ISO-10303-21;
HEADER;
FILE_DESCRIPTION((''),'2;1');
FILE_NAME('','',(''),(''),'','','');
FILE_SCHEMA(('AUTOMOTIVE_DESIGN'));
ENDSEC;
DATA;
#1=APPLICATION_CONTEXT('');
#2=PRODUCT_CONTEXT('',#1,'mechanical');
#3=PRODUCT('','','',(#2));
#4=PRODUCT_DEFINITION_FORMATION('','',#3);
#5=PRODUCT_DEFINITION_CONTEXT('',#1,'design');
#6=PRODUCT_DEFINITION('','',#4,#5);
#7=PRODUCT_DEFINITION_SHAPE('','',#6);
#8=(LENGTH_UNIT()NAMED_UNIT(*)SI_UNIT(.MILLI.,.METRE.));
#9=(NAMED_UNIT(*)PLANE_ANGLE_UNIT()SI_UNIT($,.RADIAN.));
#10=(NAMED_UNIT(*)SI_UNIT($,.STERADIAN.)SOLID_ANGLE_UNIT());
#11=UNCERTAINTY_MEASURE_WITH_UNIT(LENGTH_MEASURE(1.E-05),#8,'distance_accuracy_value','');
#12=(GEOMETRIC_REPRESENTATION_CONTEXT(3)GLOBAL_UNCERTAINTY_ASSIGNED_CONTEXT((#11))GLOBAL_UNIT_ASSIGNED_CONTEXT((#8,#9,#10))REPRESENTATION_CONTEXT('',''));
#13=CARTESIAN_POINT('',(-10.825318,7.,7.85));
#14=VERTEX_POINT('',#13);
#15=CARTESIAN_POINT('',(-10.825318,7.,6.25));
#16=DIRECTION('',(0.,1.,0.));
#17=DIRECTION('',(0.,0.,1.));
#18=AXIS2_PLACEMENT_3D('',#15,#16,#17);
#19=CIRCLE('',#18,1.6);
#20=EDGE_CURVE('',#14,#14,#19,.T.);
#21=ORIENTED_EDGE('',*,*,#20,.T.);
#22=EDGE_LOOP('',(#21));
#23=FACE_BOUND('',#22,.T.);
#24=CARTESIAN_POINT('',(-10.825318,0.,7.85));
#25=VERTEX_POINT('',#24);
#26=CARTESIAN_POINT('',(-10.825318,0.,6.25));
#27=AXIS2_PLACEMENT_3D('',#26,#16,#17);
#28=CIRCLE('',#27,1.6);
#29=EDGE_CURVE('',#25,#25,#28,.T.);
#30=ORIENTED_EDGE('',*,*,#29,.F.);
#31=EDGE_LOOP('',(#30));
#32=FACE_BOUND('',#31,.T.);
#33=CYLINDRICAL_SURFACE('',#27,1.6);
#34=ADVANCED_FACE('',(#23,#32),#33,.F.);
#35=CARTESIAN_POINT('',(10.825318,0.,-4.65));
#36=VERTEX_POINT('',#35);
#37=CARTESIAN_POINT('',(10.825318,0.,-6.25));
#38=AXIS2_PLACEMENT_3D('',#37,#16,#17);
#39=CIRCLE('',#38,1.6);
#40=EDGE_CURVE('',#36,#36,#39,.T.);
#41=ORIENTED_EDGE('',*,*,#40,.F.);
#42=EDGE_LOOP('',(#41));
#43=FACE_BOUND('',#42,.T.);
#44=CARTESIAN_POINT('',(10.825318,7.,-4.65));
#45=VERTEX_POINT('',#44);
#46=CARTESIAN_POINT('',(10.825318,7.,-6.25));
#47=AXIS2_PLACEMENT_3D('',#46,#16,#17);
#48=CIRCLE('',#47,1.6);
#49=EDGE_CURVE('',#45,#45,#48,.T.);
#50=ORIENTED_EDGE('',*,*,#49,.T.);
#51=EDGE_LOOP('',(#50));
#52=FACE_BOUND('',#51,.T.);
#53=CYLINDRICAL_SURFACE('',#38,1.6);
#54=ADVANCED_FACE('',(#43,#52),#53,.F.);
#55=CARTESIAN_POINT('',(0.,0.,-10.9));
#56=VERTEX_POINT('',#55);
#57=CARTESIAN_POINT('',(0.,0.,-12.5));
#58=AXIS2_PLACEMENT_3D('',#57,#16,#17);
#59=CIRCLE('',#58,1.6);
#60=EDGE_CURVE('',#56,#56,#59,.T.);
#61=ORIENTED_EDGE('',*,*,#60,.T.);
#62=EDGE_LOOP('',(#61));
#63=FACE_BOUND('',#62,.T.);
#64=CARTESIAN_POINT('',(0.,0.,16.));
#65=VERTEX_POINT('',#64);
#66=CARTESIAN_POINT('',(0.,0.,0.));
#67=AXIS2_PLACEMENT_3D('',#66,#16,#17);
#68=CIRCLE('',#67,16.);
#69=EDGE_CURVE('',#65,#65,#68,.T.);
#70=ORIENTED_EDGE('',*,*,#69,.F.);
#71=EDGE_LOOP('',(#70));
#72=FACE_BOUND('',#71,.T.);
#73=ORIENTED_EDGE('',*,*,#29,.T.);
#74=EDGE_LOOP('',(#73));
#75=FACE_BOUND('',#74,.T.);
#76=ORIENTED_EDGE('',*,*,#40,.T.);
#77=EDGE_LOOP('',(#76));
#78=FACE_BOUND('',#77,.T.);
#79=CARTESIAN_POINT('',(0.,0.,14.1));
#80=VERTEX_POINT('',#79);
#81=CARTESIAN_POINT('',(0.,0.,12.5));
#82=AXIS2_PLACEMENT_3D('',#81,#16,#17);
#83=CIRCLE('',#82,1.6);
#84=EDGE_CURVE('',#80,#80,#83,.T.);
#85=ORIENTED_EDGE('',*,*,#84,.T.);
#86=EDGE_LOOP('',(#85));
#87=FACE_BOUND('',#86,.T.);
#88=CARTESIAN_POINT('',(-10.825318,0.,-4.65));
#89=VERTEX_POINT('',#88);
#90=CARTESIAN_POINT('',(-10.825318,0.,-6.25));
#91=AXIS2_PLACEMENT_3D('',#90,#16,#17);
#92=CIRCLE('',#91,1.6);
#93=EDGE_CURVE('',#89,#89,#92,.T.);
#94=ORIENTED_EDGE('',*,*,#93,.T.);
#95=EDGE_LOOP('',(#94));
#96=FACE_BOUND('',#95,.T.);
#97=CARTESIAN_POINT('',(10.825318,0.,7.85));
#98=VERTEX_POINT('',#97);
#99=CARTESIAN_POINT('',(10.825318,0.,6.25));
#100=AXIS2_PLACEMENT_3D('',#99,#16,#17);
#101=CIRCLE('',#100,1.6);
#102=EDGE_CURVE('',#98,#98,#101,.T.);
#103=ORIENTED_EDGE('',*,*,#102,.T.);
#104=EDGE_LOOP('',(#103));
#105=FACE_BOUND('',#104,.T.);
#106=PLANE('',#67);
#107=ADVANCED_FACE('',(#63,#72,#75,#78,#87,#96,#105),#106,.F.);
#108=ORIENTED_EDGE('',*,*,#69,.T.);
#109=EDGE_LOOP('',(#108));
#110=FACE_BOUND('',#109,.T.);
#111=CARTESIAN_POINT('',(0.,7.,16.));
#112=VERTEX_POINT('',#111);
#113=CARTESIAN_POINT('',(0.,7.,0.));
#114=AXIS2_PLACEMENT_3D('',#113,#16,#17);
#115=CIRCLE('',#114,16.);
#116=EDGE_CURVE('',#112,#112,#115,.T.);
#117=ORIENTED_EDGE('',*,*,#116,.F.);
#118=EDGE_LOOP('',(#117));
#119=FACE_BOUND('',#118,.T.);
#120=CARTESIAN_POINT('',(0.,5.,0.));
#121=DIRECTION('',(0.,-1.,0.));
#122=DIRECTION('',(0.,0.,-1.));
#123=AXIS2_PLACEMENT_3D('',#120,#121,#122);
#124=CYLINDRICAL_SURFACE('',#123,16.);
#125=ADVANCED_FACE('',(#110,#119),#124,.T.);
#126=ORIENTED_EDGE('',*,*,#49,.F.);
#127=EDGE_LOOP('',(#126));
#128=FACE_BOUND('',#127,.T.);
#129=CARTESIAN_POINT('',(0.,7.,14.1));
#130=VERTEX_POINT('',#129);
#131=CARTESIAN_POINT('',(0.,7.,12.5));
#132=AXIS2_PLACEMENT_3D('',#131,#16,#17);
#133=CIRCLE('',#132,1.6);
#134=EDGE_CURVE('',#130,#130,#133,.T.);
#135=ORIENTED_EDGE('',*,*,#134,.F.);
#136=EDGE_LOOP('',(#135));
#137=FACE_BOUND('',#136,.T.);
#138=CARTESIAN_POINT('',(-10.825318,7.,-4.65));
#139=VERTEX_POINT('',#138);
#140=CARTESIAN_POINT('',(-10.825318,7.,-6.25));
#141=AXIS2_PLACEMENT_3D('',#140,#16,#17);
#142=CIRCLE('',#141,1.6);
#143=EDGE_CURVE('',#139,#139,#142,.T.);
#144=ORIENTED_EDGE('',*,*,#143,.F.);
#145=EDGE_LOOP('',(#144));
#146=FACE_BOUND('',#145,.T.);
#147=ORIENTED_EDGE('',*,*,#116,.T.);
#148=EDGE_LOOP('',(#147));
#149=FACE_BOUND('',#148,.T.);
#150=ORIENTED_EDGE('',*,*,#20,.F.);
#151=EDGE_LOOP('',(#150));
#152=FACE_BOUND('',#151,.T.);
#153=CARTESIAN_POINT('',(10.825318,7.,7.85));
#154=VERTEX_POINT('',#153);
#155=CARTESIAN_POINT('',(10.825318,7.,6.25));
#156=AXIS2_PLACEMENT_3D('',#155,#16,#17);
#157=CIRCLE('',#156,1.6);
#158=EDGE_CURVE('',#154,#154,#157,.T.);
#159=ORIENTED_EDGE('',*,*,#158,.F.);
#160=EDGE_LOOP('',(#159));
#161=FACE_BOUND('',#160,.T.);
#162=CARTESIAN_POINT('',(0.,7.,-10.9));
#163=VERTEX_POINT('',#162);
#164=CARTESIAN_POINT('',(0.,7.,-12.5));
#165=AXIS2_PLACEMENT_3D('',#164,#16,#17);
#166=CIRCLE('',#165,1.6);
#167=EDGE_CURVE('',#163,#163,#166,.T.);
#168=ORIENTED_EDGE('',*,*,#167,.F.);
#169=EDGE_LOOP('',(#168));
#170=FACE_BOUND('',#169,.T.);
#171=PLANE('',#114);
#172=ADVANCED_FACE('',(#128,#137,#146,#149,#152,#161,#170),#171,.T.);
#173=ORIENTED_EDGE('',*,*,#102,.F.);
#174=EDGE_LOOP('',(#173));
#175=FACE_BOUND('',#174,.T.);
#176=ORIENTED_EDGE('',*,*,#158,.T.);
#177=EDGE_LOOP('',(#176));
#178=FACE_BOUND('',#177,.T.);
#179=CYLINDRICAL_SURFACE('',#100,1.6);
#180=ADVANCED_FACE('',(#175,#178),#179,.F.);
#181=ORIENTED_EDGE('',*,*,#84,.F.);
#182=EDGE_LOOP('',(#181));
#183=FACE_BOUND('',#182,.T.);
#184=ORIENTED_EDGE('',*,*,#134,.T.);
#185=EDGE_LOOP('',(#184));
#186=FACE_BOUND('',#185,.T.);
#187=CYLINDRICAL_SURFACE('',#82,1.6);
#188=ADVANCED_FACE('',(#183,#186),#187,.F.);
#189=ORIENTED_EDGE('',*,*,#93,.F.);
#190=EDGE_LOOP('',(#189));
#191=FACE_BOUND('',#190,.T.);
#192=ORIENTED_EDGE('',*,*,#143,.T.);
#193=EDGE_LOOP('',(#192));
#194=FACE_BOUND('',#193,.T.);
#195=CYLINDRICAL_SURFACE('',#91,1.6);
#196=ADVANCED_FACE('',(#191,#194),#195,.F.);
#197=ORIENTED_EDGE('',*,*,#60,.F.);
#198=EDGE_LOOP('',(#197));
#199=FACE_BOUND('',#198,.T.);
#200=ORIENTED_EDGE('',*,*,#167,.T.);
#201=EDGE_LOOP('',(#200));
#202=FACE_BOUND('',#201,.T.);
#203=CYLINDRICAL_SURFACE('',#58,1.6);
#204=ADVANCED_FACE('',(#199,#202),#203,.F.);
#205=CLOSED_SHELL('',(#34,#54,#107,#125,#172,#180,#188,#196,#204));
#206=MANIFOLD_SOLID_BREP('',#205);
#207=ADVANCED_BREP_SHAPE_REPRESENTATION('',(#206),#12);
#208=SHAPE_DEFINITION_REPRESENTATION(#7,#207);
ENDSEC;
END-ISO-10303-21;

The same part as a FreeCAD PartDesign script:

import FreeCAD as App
import Part
import Sketcher
from FreeCAD import Vector
Q = App.Units.Quantity

doc = App.newDocument("Part")
body = doc.addObject("PartDesign::Body", "Body")

# Sketch on XZ plane
sketch1 = body.newObject("Sketcher::SketchObject", "Sketch")
sketch1.AttachmentSupport = (doc.getObject("XZ_Plane"), [""])
sketch1.MapMode = "FlatFace"
sketch1.addGeometry(Part.Circle(Vector(0, 0, 0), Vector(0, 0, 1), 16), False)
sketch1.addConstraint([
    Sketcher.Constraint("Coincident", 0, 3, -1, 1),
    Sketcher.Constraint("Diameter", 0, Q("32 mm")),
])
pad1 = body.newObject("PartDesign::Pad", "Pad")
pad1.Profile = sketch1
pad1.Length = 5
pad1.Reversed = True

# Sketch on XZ plane
sketch2 = body.newObject("Sketcher::SketchObject", "Sketch001")
sketch2.AttachmentSupport = (doc.getObject("XZ_Plane"), [""])
sketch2.MapMode = "FlatFace"
sketch2.AttachmentOffset = App.Placement(Vector(0, 0, -5), App.Rotation())
sketch2.addGeometry(Part.Circle(Vector(0, 0, 0), Vector(0, 0, 1), 16), False)
sketch2.addConstraint([
    Sketcher.Constraint("Coincident", 0, 3, -1, 1),
    Sketcher.Constraint("Diameter", 0, Q("32 mm")),
])
pad2 = body.newObject("PartDesign::Pad", "Pad001")
pad2.Profile = sketch2
pad2.Length = 2
pad2.Reversed = True

# Sketch on XZ plane
sketch3 = body.newObject("Sketcher::SketchObject", "Sketch002")
sketch3.AttachmentSupport = (doc.getObject("XZ_Plane"), [""])
sketch3.MapMode = "FlatFace"
sketch3.AttachmentOffset = App.Placement(Vector(0, 0, -7), App.Rotation())
sketch3.addGeometry([
    Part.Circle(Vector(0, -12.5, 0), Vector(0, 0, 1), 1.6),  # 0
    Part.Circle(Vector(10.8, -6.2, 0), Vector(0, 0, 1), 1.6),  # 1
    Part.Circle(Vector(10.8, 6.2, 0), Vector(0, 0, 1), 1.6),  # 2
    Part.Circle(Vector(0, 12.5, 0), Vector(0, 0, 1), 1.6),  # 3
    Part.Circle(Vector(-10.8, 6.2, 0), Vector(0, 0, 1), 1.6),  # 4
    Part.Circle(Vector(-10.8, -6.2, 0), Vector(0, 0, 1), 1.6),  # 5
], False)
sketch3.addConstraint([
    Sketcher.Constraint("Equal", 0, 1),
    Sketcher.Constraint("Equal", 1, 2),
    Sketcher.Constraint("Equal", 2, 3),
    Sketcher.Constraint("Equal", 3, 4),
    Sketcher.Constraint("Equal", 4, 5),
    Sketcher.Constraint("Symmetric", 0, 3, 3, 3, -1, 1),
    Sketcher.Constraint("Symmetric", 1, 3, 4, 3, -1, 1),
    Sketcher.Constraint("Symmetric", 2, 3, 5, 3, -1, 1),
    Sketcher.Constraint("Symmetric", 2, 3, 4, 3, -2),
    Sketcher.Constraint("PointOnObject", 0, 3, -2),
    Sketcher.Constraint("Diameter", 0, Q("3.2 mm")),
    Sketcher.Constraint("DistanceY", 0, 3, 3, 3, Q("25 mm")),
    Sketcher.Constraint("DistanceY", 1, 3, 2, 3, Q("12.5 mm")),
    Sketcher.Constraint("DistanceX", -1, 1, 1, 3, Q("10.825318 mm")),
])
pocket1 = body.newObject("PartDesign::Pocket", "Pocket")
pocket1.Profile = sketch3
pocket1.Type = "ThroughAll"
pocket1.Reversed = True

doc.recompute()
